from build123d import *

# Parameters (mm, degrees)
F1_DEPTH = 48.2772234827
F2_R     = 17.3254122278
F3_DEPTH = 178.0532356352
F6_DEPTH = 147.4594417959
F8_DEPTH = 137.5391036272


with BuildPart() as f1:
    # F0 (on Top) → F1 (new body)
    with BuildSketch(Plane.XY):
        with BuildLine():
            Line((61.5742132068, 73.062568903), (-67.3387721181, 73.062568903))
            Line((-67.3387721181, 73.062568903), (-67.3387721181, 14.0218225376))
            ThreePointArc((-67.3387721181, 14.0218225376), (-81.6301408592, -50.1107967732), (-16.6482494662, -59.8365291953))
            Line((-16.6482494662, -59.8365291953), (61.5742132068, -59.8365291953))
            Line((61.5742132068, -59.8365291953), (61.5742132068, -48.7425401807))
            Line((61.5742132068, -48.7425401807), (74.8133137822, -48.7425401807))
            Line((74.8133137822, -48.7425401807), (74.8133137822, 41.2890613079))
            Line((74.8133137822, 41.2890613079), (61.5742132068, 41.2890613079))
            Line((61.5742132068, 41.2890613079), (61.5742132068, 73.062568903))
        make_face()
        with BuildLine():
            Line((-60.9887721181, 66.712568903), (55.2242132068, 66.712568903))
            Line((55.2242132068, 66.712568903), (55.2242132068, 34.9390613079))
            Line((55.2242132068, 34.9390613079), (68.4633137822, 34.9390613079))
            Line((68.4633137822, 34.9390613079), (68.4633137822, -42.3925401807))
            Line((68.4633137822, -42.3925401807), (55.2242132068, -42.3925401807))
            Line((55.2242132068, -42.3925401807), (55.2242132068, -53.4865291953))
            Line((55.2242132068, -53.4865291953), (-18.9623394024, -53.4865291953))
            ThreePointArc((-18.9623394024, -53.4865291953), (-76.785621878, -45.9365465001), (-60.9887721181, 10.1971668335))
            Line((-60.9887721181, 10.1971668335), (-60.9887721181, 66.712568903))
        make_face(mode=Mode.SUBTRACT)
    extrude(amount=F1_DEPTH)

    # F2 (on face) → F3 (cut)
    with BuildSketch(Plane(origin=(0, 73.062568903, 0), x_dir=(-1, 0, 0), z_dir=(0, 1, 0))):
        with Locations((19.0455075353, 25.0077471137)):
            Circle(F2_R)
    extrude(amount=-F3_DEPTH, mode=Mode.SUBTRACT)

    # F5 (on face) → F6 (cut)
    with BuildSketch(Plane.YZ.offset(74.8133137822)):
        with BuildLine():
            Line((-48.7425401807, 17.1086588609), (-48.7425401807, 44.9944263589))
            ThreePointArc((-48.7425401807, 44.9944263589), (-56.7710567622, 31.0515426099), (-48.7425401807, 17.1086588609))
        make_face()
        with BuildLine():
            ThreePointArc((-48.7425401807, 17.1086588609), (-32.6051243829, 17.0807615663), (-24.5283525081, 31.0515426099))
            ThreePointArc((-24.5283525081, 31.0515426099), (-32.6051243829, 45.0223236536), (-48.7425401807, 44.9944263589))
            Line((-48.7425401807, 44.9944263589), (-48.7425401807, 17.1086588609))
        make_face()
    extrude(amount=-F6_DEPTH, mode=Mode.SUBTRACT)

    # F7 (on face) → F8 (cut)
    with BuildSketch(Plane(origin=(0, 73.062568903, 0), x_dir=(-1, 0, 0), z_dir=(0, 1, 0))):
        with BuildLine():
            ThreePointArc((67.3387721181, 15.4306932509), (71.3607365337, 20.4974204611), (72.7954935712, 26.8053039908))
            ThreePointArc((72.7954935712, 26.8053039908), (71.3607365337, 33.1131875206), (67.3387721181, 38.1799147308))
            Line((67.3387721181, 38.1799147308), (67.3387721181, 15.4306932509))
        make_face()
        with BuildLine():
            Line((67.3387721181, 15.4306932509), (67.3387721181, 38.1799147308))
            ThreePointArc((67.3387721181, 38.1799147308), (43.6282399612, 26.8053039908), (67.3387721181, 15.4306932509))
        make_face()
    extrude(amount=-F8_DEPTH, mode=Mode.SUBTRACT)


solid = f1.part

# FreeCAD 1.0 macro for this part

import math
import FreeCAD as App
import Part
import Sketcher
Q = App.Units.Quantity

doc = App.newDocument("Part")
body = doc.addObject("PartDesign::Body", "Body")

sketch1 = doc.addObject("Sketcher::SketchObject", "Sketch")
body.addObject(sketch1)
sketch1.AttachmentSupport = (doc.XY_Plane, [""])
sketch1.MapMode = "FlatFace"
sketch1.addGeometry(Part.LineSegment(App.Vector(61.574213, 73.062569, 0), App.Vector(-67.338772, 73.062569, 0)), False)
sketch1.addGeometry(Part.LineSegment(App.Vector(-67.338772, 73.062569, 0), App.Vector(-67.338772, 14.021823, 0)), False)
sketch1.addGeometry(Part.ArcOfCircle(Part.Circle(App.Vector(-44.608496, -24.702072, 0), App.Vector(0, 0, 1), 44.902177), math.radians(120.412219), math.radians(308.51302)), False)
sketch1.addGeometry(Part.LineSegment(App.Vector(-16.648249, -59.836529, 0), App.Vector(61.574213, -59.836529, 0)), False)
sketch1.addGeometry(Part.LineSegment(App.Vector(61.574213, -59.836529, 0), App.Vector(61.574213, -48.74254, 0)), False)
sketch1.addGeometry(Part.LineSegment(App.Vector(61.574213, -48.74254, 0), App.Vector(74.813314, -48.74254, 0)), False)
sketch1.addGeometry(Part.LineSegment(App.Vector(74.813314, -48.74254, 0), App.Vector(74.813314, 41.289061, 0)), False)
sketch1.addGeometry(Part.LineSegment(App.Vector(74.813314, 41.289061, 0), App.Vector(61.574213, 41.289061, 0)), False)
sketch1.addGeometry(Part.LineSegment(App.Vector(61.574213, 41.289061, 0), App.Vector(61.574213, 73.062569, 0)), False)
sketch1.addGeometry(Part.LineSegment(App.Vector(-60.988772, 10.197167, 0), App.Vector(-60.988772, 66.712569, 0)), False)
sketch1.addGeometry(Part.LineSegment(App.Vector(-60.988772, 66.712569, 0), App.Vector(55.224213, 66.712569, 0)), False)
sketch1.addGeometry(Part.LineSegment(App.Vector(55.224213, 66.712569, 0), App.Vector(55.224213, 34.939061, 0)), False)
sketch1.addGeometry(Part.LineSegment(App.Vector(55.224213, 34.939061, 0), App.Vector(68.463314, 34.939061, 0)), False)
sketch1.addGeometry(Part.LineSegment(App.Vector(68.463314, 34.939061, 0), App.Vector(68.463314, -42.39254, 0)), False)
sketch1.addGeometry(Part.LineSegment(App.Vector(68.463314, -42.39254, 0), App.Vector(55.224213, -42.39254, 0)), False)
sketch1.addGeometry(Part.LineSegment(App.Vector(55.224213, -42.39254, 0), App.Vector(55.224213, -53.486529, 0)), False)
sketch1.addGeometry(Part.LineSegment(App.Vector(55.224213, -53.486529, 0), App.Vector(-18.962339, -53.486529, 0)), False)
sketch1.addGeometry(Part.ArcOfCircle(Part.Circle(App.Vector(-44.608496, -24.702072, 0), App.Vector(0, 0, 1), 38.552177), math.radians(115.143441), math.radians(311.700156)), False)
sketch1.addConstraint(Sketcher.Constraint("Coincident", 0, 2, 1, 1))
sketch1.addConstraint(Sketcher.Constraint("Coincident", 1, 2, 2, 1))
sketch1.addConstraint(Sketcher.Constraint("Coincident", 2, 2, 3, 1))
sketch1.addConstraint(Sketcher.Constraint("Coincident", 3, 2, 4, 1))
sketch1.addConstraint(Sketcher.Constraint("Coincident", 4, 2, 5, 1))
sketch1.addConstraint(Sketcher.Constraint("Coincident", 5, 2, 6, 1))
sketch1.addConstraint(Sketcher.Constraint("Coincident", 6, 2, 7, 1))
sketch1.addConstraint(Sketcher.Constraint("Coincident", 7, 2, 8, 1))
sketch1.addConstraint(Sketcher.Constraint("Coincident", 8, 2, 0, 1))
sketch1.addConstraint(Sketcher.Constraint("Coincident", 9, 2, 10, 1))
sketch1.addConstraint(Sketcher.Constraint("Coincident", 10, 2, 11, 1))
sketch1.addConstraint(Sketcher.Constraint("Coincident", 11, 2, 12, 1))
sketch1.addConstraint(Sketcher.Constraint("Coincident", 12, 2, 13, 1))
sketch1.addConstraint(Sketcher.Constraint("Coincident", 13, 2, 14, 1))
sketch1.addConstraint(Sketcher.Constraint("Coincident", 14, 2, 15, 1))
sketch1.addConstraint(Sketcher.Constraint("Coincident", 15, 2, 16, 1))
sketch1.addConstraint(Sketcher.Constraint("Coincident", 16, 2, 17, 2))
sketch1.addConstraint(Sketcher.Constraint("Coincident", 17, 1, 9, 1))
sketch1.addConstraint(Sketcher.Constraint("Horizontal", 0))
sketch1.addConstraint(Sketcher.Constraint("Vertical", 1))
sketch1.addConstraint(Sketcher.Constraint("Horizontal", 3))
sketch1.addConstraint(Sketcher.Constraint("Vertical", 4))
sketch1.addConstraint(Sketcher.Constraint("Horizontal", 5))
sketch1.addConstraint(Sketcher.Constraint("Vertical", 6))
sketch1.addConstraint(Sketcher.Constraint("Horizontal", 7))
sketch1.addConstraint(Sketcher.Constraint("Vertical", 8))
sketch1.addConstraint(Sketcher.Constraint("Vertical", 9))
sketch1.addConstraint(Sketcher.Constraint("Horizontal", 10))
sketch1.addConstraint(Sketcher.Constraint("Vertical", 11))
sketch1.addConstraint(Sketcher.Constraint("Horizontal", 12))
sketch1.addConstraint(Sketcher.Constraint("Vertical", 13))
sketch1.addConstraint(Sketcher.Constraint("Horizontal", 14))
sketch1.addConstraint(Sketcher.Constraint("Vertical", 15))
sketch1.addConstraint(Sketcher.Constraint("Horizontal", 16))
sketch1.addConstraint(Sketcher.Constraint("Coincident", 17, 3, 2, 3))
sketch1.addConstraint(Sketcher.Constraint("Vertical", 4, 2, 7, 2))
sketch1.addConstraint(Sketcher.Constraint("Vertical", 11, 2, 14, 2))
sketch1.addConstraint(Sketcher.Constraint("Equal", 7, 12))
sketch1.addConstraint(Sketcher.Constraint("Equal", 8, 11))
sketch1.addConstraint(Sketcher.Constraint("Equal", 4, 15))
sketch1.addConstraint(Sketcher.Constraint("DistanceX", 0, 2, 9, 2, Q("6.35 mm")))
sketch1.addConstraint(Sketcher.Constraint("DistanceY", 9, 2, 0, 2, Q("6.35 mm")))
sketch1.addConstraint(Sketcher.Constraint("DistanceX", 10, 2, 8, 2, Q("6.35 mm")))
sketch1.addConstraint(Sketcher.Constraint("DistanceY", 5, 2, 13, 2, Q("6.35 mm")))
sketch1.addConstraint(Sketcher.Constraint("DistanceX", 5, 1, 5, 2, Q("13.239101 mm")))
sketch1.addConstraint(Sketcher.Constraint("DistanceY", 6, 1, 6, 2, Q("90.031601 mm")))
sketch1.addConstraint(Sketcher.Constraint("Radius", 2, Q("44.902177 mm")))
sketch1.addConstraint(Sketcher.Constraint("Radius", 17, Q("38.552177 mm")))
sketch1.addConstraint(Sketcher.Constraint("DistanceY", 4, 1, 4, 2, Q("11.093989 mm")))
sketch1.addConstraint(Sketcher.Constraint("DistanceY", 2, 2, 0, 2, Q("132.899098 mm")))
sketch1.addConstraint(Sketcher.Constraint("DistanceX", 0, 2, 0, 1, Q("128.912985 mm")))
sketch1.addConstraint(Sketcher.Constraint("DistanceX", 3, 1, 3, 2, Q("78.222463 mm")))
sketch1.addConstraint(Sketcher.Constraint("DistanceX", 16, 2, 16, 1, Q("74.186553 mm")))
sketch1.addConstraint(Sketcher.Constraint("DistanceY", -1, 1, 0, 2, Q("73.062569 mm")))
sketch1.addConstraint(Sketcher.Constraint("DistanceX", 2, 2, -1, 1, Q("16.648249 mm")))
pad1 = doc.addObject("PartDesign::Pad", "Pad")
body.addObject(pad1)
pad1.Profile = sketch1
pad1.Length = 48.277223

sketch2 = doc.addObject("Sketcher::SketchObject", "Sketch001")
body.addObject(sketch2)
sketch2.AttachmentSupport = (doc.XZ_Plane, [""])
sketch2.MapMode = "FlatFace"
sketch2.AttachmentOffset = App.Placement(App.Vector(0, 0, -73.062569), App.Rotation())
sketch2.addGeometry(Part.Circle(App.Vector(-19.045508, 25.007747, 0), App.Vector(0, 0, 1), 17.325412), False)
sketch2.addConstraint(Sketcher.Constraint("Diameter", 0, Q("34.650824 mm")))
sketch2.addConstraint(Sketcher.Constraint("DistanceX", 0, 3, -1, 1, Q("19.045508 mm")))
sketch2.addConstraint(Sketcher.Constraint("DistanceY", -1, 1, 0, 3, Q("25.007747 mm")))
pocket1 = doc.addObject("PartDesign::Pocket", "Pocket")
body.addObject(pocket1)
pocket1.Profile = sketch2
pocket1.Length = 178.053236
pocket1.Reversed = True

sketch3 = doc.addObject("Sketcher::SketchObject", "Sketch002")
body.addObject(sketch3)
sketch3.AttachmentSupport = (doc.YZ_Plane, [""])
sketch3.MapMode = "FlatFace"
sketch3.AttachmentOffset = App.Placement(App.Vector(0, 0, 74.813314), App.Rotation())
sketch3.addGeometry(Part.ArcOfCircle(Part.Circle(App.Vector(-40.649705, 31.051543, 0), App.Vector(0, 0, 1), 16.121352), math.radians(-120.132065), math.radians(0)), False)
sketch3.addGeometry(Part.ArcOfCircle(Part.Circle(App.Vector(-40.649705, 31.051543, 0), App.Vector(0, 0, 1), 16.121352), math.radians(0), math.radians(239.867935)), False)
sketch3.addConstraint(Sketcher.Constraint("Tangent", 0, 1, 1, 2))
sketch3.addConstraint(Sketcher.Constraint("Coincident", 1, 1, 0, 2))
sketch3.addConstraint(Sketcher.Constraint("Horizontal", 0, 3, 1, 1))
sketch3.addConstraint(Sketcher.Constraint("Radius", 0, Q("16.121352 mm")))
sketch3.addConstraint(Sketcher.Constraint("DistanceX", 0, 1, -1, 1, Q("48.74254 mm")))
sketch3.addConstraint(Sketcher.Constraint("DistanceY", -1, 1, 0, 1, Q("17.108659 mm")))
sketch3.addConstraint(Sketcher.Constraint("DistanceX", 0, 3, -1, 1, Q("40.649705 mm")))
pocket2 = doc.addObject("PartDesign::Pocket", "Pocket001")
body.addObject(pocket2)
pocket2.Profile = sketch3
pocket2.Length = 147.459442

sketch4 = doc.addObject("Sketcher::SketchObject", "Sketch003")
body.addObject(sketch4)
sketch4.AttachmentSupport = (doc.XZ_Plane, [""])
sketch4.MapMode = "FlatFace"
sketch4.AttachmentOffset = App.Placement(App.Vector(0, 0, -73.062569), App.Rotation())
sketch4.addGeometry(Part.ArcOfCircle(Part.Circle(App.Vector(-58.211867, 26.805304, 0), App.Vector(0, 0, 1), 14.583627), math.radians(180), math.radians(231.256695)), False)
sketch4.addGeometry(Part.ArcOfCircle(Part.Circle(App.Vector(-58.211867, 26.805304, 0), App.Vector(0, 0, 1), 14.583627), math.radians(128.743305), math.radians(180)), False)
sketch4.addGeometry(Part.ArcOfCircle(Part.Circle(App.Vector(-58.211867, 26.805304, 0), App.Vector(0, 0, 1), 14.583627), math.radians(-128.743305), math.radians(128.743305)), False)
sketch4.addConstraint(Sketcher.Constraint("Tangent", 0, 1, 1, 2))
sketch4.addConstraint(Sketcher.Constraint("Tangent", 1, 1, 2, 2))
sketch4.addConstraint(Sketcher.Constraint("Tangent", 2, 1, 0, 2))
sketch4.addConstraint(Sketcher.Constraint("Horizontal", 2, 3, 0, 1))
sketch4.addConstraint(Sketcher.Constraint("Vertical", 1, 1, 2, 1))
sketch4.addConstraint(Sketcher.Constraint("Radius", 0, Q("14.583627 mm")))
sketch4.addConstraint(Sketcher.Constraint("DistanceX", 0, 1, 1, 1, Q("5.456721 mm")))
sketch4.addConstraint(Sketcher.Constraint("DistanceX", 0, 3, -1, 1, Q("58.211867 mm")))
sketch4.addConstraint(Sketcher.Constraint("DistanceY", -1, 1, 0, 3, Q("26.805304 mm")))
pocket3 = doc.addObject("PartDesign::Pocket", "Pocket002")
body.addObject(pocket3)
pocket3.Profile = sketch4
pocket3.Length = 137.539104
pocket3.Reversed = True

doc.recompute()
